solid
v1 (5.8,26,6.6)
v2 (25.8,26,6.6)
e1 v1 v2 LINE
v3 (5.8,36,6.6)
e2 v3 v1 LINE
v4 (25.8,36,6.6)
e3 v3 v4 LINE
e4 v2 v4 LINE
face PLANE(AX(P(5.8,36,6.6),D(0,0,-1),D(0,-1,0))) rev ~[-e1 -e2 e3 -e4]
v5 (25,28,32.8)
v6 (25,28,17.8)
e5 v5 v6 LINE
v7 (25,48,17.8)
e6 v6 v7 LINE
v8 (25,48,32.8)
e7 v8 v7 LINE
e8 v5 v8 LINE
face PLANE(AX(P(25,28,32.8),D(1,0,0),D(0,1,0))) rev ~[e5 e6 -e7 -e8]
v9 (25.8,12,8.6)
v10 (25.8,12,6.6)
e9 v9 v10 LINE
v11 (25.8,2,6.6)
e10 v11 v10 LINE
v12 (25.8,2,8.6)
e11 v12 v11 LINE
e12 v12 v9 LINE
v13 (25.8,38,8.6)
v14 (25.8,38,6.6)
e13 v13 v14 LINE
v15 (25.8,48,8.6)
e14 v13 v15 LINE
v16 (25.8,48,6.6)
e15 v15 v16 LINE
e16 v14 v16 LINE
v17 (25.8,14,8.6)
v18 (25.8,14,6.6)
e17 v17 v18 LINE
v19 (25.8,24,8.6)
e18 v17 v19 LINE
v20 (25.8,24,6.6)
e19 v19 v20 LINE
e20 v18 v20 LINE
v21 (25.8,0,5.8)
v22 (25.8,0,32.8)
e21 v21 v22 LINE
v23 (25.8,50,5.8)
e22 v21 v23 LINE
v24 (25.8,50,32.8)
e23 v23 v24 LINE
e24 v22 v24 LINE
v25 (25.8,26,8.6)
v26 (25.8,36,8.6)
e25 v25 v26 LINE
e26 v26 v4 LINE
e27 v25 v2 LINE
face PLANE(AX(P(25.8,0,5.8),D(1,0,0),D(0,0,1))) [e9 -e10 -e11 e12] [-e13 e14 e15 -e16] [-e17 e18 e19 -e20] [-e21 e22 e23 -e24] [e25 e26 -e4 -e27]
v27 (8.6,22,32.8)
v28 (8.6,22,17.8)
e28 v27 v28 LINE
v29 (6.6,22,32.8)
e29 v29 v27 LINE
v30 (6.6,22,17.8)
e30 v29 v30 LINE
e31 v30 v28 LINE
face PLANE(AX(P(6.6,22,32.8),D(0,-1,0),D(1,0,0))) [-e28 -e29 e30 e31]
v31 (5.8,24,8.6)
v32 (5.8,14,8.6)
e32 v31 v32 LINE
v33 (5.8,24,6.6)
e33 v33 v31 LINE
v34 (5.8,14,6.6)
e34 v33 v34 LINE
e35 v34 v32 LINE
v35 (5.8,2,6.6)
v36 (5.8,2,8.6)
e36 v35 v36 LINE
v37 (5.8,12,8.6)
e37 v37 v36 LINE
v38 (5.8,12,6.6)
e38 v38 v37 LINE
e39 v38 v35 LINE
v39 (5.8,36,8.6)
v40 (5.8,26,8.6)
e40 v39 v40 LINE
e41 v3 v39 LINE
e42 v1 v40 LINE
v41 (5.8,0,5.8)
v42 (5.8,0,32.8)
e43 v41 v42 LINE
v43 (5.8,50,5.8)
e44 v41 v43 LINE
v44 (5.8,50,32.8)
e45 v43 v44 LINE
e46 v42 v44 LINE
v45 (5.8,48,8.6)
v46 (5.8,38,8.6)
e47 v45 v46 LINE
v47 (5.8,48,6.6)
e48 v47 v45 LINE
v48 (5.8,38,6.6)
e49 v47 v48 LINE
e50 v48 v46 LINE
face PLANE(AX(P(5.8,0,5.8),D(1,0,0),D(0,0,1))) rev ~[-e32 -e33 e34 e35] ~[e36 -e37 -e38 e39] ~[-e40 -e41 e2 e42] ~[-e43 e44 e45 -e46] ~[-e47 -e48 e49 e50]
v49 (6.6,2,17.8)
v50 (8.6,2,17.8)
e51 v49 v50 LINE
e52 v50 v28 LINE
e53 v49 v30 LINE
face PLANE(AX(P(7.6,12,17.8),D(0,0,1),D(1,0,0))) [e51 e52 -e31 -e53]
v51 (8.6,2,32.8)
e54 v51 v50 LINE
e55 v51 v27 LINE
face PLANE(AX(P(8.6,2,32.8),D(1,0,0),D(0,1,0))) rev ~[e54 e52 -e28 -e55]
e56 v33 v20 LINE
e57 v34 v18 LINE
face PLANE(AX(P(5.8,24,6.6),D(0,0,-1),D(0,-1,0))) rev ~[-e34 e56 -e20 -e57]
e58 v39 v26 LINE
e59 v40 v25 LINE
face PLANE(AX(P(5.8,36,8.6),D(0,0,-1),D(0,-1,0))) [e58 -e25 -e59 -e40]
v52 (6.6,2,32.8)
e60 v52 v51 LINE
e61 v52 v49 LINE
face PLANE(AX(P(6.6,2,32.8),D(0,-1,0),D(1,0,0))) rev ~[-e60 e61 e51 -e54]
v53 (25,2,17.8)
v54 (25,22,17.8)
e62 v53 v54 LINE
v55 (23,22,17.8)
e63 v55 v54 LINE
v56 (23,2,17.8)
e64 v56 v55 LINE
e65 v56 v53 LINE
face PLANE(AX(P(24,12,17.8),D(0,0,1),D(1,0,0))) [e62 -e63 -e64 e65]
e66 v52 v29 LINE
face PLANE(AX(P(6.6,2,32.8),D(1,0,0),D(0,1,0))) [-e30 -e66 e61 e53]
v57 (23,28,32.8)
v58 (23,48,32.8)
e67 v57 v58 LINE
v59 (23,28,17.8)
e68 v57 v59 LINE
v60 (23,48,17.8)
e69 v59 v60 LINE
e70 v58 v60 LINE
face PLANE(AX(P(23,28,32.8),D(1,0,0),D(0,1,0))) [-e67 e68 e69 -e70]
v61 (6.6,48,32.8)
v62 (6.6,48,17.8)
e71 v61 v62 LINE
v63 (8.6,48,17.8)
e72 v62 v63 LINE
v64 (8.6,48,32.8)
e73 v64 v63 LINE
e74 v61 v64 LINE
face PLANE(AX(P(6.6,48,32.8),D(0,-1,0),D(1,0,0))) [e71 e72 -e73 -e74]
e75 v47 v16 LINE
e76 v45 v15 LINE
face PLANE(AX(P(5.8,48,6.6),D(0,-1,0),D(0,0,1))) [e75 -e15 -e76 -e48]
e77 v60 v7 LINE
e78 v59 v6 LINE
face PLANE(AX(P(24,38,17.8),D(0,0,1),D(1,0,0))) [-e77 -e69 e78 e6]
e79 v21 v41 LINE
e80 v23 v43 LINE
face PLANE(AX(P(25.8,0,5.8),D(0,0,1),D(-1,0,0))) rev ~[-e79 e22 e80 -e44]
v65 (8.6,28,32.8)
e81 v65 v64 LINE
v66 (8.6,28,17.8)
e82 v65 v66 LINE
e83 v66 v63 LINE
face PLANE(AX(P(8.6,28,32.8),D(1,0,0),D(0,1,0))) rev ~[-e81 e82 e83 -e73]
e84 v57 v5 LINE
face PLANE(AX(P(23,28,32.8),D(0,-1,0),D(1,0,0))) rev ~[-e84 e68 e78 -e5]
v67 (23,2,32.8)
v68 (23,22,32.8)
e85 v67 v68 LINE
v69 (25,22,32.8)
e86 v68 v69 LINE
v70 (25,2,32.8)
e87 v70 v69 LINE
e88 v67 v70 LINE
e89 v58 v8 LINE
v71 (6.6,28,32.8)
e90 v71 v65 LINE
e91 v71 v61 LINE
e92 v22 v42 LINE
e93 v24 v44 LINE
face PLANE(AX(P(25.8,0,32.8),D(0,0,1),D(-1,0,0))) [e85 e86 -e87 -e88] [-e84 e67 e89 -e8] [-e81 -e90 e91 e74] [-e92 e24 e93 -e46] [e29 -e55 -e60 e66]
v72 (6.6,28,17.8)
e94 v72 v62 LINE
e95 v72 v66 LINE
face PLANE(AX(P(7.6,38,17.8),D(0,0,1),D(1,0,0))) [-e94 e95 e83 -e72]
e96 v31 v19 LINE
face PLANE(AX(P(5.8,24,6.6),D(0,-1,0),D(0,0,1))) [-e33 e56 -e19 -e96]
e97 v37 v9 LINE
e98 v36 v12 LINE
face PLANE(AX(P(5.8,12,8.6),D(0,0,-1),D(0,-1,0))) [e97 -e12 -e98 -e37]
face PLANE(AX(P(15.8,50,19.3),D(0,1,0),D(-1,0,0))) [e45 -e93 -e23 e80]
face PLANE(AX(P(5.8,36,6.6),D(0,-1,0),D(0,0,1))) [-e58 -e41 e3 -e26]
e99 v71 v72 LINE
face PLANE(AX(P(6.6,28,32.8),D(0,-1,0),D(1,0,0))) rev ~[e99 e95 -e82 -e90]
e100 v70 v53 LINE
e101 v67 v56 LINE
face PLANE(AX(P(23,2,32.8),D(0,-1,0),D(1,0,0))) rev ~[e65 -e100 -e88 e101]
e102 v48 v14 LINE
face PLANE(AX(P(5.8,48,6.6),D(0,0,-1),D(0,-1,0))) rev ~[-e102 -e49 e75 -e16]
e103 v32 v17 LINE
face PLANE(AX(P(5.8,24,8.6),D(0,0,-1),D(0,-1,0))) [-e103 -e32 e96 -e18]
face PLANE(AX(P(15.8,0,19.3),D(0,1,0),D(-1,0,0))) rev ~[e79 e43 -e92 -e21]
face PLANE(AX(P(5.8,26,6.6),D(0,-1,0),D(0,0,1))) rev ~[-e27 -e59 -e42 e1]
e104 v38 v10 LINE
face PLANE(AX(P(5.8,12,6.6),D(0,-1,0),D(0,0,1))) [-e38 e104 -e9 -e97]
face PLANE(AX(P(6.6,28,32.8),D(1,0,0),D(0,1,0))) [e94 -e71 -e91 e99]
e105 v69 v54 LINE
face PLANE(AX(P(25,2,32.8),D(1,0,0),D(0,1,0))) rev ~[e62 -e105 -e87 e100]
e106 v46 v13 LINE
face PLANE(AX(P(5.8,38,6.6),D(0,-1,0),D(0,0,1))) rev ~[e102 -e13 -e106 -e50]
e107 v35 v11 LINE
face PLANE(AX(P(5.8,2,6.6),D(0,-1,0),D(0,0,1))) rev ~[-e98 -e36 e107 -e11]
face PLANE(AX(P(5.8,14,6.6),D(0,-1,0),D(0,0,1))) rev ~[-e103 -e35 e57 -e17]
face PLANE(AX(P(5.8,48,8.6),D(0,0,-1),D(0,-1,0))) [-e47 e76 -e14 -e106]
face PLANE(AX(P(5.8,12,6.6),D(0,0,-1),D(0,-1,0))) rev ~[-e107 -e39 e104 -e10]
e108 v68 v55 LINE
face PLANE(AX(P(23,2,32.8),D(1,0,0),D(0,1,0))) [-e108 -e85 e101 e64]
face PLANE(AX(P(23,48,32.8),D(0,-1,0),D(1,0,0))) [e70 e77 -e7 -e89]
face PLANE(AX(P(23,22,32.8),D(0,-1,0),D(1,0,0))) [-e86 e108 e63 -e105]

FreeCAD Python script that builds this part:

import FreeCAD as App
import Part
import Sketcher
from FreeCAD import Vector
Q = App.Units.Quantity


def add_polygon(sketch, points):
    """Adds a closed chain of lines whose ends are joined by coincident constraints."""
    first, n = sketch.GeometryCount, len(points)
    for a, b in zip(points, points[1:] + points[:1]):
        sketch.addGeometry(Part.LineSegment(App.Vector(*a, 0), App.Vector(*b, 0)), False)
    for i in range(n):
        sketch.addConstraint(Sketcher.Constraint("Coincident", first + i, 2, first + (i + 1) % n, 1))

doc = App.newDocument("Part")
body = doc.addObject("PartDesign::Body", "Body")

sketch1 = body.newObject("Sketcher::SketchObject", "Sketch")
sketch1.AttachmentSupport = (doc.getObject("XZ_Plane"), [""])
sketch1.MapMode = "FlatFace"
add_polygon(sketch1, [(25.8, 32.8), (25.8, 5.8), (5.8, 5.8), (5.8, 32.8)])
sketch1.addConstraint(Sketcher.Constraint("Vertical", 0))
sketch1.addConstraint(Sketcher.Constraint("Horizontal", 1))
sketch1.addConstraint(Sketcher.Constraint("Vertical", 2))
sketch1.addConstraint(Sketcher.Constraint("Horizontal", 3))
sketch1.addConstraint(Sketcher.Constraint("DistanceX", 1, 2, 1, 1, Q("20 mm")))
sketch1.addConstraint(Sketcher.Constraint("DistanceY", 0, 2, 0, 1, Q("27 mm")))
sketch1.addConstraint(Sketcher.Constraint("DistanceX", -1, 1, 0, 2, Q("25.8 mm")))
sketch1.addConstraint(Sketcher.Constraint("DistanceY", -1, 1, 0, 2, Q("5.8 mm")))
pad1 = body.newObject("PartDesign::Pad", "Pad")
pad1.Profile = sketch1
pad1.Length = 50
pad1.Reversed = True

sketch2 = body.newObject("Sketcher::SketchObject", "Sketch001")
sketch2.AttachmentSupport = (doc.getObject("YZ_Plane"), [""])
sketch2.MapMode = "FlatFace"
sketch2.AttachmentOffset = App.Placement(Vector(0, 0, 5.8), App.Rotation())
add_polygon(sketch2, [(12, 8.6), (12, 6.6), (2, 6.6), (2, 8.6)])
sketch2.addConstraint(Sketcher.Constraint("Vertical", 0))
sketch2.addConstraint(Sketcher.Constraint("Horizontal", 1))
sketch2.addConstraint(Sketcher.Constraint("Vertical", 2))
sketch2.addConstraint(Sketcher.Constraint("Horizontal", 3))
sketch2.addConstraint(Sketcher.Constraint("DistanceX", 1, 2, 1, 1, Q("10 mm")))
sketch2.addConstraint(Sketcher.Constraint("DistanceY", 0, 2, 0, 1, Q("2 mm")))
sketch2.addConstraint(Sketcher.Constraint("DistanceX", -1, 1, 0, 2, Q("12 mm")))
sketch2.addConstraint(Sketcher.Constraint("DistanceY", -1, 1, 0, 2, Q("6.6 mm")))
pocket1 = body.newObject("PartDesign::Pocket", "Pocket")
pocket1.Profile = sketch2
pocket1.Type = "ThroughAll"
pocket1.Reversed = True
doc.recompute()

linearpattern = body.newObject("PartDesign::LinearPattern", "LinearPattern")
linearpattern.Originals = [pocket1]
linearpattern.Direction = (doc.getObject("Y_Axis"), [""])
linearpattern.Mode = "offset"
linearpattern.Offset = 12
linearpattern.Occurrences = 4
body.Tip = linearpattern

sketch3 = body.newObject("Sketcher::SketchObject", "Sketch002")
sketch3.AttachmentSupport = (doc.getObject("XY_Plane"), [""])
sketch3.MapMode = "FlatFace"
sketch3.AttachmentOffset = App.Placement(Vector(0, 0, 32.8), App.Rotation())
add_polygon(sketch3, [(6.6, 22), (6.6, 2), (8.6, 2), (8.6, 22)])
add_polygon(sketch3, [(23, 22), (23, 2), (25, 2), (25, 22)])
sketch3.addConstraint(Sketcher.Constraint("Vertical", 0))
sketch3.addConstraint(Sketcher.Constraint("Horizontal", 1))
sketch3.addConstraint(Sketcher.Constraint("Vertical", 2))
sketch3.addConstraint(Sketcher.Constraint("Horizontal", 3))
sketch3.addConstraint(Sketcher.Constraint("Vertical", 4))
sketch3.addConstraint(Sketcher.Constraint("Horizontal", 5))
sketch3.addConstraint(Sketcher.Constraint("Vertical", 6))
sketch3.addConstraint(Sketcher.Constraint("Horizontal", 7))
sketch3.addConstraint(Sketcher.Constraint("Horizontal", 1, 2, 4, 2))
sketch3.addConstraint(Sketcher.Constraint("Horizontal", 3, 2, 6, 2))
sketch3.addConstraint(Sketcher.Constraint("Equal", 3, 5))
sketch3.addConstraint(Sketcher.Constraint("DistanceX", 1, 1, 1, 2, Q("2 mm")))
sketch3.addConstraint(Sketcher.Constraint("DistanceY", 0, 2, 0, 1, Q("20 mm")))
sketch3.addConstraint(Sketcher.Constraint("DistanceY", -1, 1, 0, 2, Q("2 mm")))
sketch3.addConstraint(Sketcher.Constraint("DistanceX", -1, 1, 4, 2, Q("23 mm")))
sketch3.addConstraint(Sketcher.Constraint("DistanceX", -1, 1, 0, 2, Q("6.6 mm")))
pocket2 = body.newObject("PartDesign::Pocket", "Pocket001")
pocket2.Profile = sketch3
pocket2.Length = 15
doc.recompute()

linearpattern2 = body.newObject("PartDesign::LinearPattern", "LinearPattern001")
linearpattern2.Originals = [pocket2]
linearpattern2.Direction = (doc.getObject("Y_Axis"), [""])
linearpattern2.Mode = "offset"
linearpattern2.Offset = 26
linearpattern2.Occurrences = 2
body.Tip = linearpattern2

doc.recompute()
